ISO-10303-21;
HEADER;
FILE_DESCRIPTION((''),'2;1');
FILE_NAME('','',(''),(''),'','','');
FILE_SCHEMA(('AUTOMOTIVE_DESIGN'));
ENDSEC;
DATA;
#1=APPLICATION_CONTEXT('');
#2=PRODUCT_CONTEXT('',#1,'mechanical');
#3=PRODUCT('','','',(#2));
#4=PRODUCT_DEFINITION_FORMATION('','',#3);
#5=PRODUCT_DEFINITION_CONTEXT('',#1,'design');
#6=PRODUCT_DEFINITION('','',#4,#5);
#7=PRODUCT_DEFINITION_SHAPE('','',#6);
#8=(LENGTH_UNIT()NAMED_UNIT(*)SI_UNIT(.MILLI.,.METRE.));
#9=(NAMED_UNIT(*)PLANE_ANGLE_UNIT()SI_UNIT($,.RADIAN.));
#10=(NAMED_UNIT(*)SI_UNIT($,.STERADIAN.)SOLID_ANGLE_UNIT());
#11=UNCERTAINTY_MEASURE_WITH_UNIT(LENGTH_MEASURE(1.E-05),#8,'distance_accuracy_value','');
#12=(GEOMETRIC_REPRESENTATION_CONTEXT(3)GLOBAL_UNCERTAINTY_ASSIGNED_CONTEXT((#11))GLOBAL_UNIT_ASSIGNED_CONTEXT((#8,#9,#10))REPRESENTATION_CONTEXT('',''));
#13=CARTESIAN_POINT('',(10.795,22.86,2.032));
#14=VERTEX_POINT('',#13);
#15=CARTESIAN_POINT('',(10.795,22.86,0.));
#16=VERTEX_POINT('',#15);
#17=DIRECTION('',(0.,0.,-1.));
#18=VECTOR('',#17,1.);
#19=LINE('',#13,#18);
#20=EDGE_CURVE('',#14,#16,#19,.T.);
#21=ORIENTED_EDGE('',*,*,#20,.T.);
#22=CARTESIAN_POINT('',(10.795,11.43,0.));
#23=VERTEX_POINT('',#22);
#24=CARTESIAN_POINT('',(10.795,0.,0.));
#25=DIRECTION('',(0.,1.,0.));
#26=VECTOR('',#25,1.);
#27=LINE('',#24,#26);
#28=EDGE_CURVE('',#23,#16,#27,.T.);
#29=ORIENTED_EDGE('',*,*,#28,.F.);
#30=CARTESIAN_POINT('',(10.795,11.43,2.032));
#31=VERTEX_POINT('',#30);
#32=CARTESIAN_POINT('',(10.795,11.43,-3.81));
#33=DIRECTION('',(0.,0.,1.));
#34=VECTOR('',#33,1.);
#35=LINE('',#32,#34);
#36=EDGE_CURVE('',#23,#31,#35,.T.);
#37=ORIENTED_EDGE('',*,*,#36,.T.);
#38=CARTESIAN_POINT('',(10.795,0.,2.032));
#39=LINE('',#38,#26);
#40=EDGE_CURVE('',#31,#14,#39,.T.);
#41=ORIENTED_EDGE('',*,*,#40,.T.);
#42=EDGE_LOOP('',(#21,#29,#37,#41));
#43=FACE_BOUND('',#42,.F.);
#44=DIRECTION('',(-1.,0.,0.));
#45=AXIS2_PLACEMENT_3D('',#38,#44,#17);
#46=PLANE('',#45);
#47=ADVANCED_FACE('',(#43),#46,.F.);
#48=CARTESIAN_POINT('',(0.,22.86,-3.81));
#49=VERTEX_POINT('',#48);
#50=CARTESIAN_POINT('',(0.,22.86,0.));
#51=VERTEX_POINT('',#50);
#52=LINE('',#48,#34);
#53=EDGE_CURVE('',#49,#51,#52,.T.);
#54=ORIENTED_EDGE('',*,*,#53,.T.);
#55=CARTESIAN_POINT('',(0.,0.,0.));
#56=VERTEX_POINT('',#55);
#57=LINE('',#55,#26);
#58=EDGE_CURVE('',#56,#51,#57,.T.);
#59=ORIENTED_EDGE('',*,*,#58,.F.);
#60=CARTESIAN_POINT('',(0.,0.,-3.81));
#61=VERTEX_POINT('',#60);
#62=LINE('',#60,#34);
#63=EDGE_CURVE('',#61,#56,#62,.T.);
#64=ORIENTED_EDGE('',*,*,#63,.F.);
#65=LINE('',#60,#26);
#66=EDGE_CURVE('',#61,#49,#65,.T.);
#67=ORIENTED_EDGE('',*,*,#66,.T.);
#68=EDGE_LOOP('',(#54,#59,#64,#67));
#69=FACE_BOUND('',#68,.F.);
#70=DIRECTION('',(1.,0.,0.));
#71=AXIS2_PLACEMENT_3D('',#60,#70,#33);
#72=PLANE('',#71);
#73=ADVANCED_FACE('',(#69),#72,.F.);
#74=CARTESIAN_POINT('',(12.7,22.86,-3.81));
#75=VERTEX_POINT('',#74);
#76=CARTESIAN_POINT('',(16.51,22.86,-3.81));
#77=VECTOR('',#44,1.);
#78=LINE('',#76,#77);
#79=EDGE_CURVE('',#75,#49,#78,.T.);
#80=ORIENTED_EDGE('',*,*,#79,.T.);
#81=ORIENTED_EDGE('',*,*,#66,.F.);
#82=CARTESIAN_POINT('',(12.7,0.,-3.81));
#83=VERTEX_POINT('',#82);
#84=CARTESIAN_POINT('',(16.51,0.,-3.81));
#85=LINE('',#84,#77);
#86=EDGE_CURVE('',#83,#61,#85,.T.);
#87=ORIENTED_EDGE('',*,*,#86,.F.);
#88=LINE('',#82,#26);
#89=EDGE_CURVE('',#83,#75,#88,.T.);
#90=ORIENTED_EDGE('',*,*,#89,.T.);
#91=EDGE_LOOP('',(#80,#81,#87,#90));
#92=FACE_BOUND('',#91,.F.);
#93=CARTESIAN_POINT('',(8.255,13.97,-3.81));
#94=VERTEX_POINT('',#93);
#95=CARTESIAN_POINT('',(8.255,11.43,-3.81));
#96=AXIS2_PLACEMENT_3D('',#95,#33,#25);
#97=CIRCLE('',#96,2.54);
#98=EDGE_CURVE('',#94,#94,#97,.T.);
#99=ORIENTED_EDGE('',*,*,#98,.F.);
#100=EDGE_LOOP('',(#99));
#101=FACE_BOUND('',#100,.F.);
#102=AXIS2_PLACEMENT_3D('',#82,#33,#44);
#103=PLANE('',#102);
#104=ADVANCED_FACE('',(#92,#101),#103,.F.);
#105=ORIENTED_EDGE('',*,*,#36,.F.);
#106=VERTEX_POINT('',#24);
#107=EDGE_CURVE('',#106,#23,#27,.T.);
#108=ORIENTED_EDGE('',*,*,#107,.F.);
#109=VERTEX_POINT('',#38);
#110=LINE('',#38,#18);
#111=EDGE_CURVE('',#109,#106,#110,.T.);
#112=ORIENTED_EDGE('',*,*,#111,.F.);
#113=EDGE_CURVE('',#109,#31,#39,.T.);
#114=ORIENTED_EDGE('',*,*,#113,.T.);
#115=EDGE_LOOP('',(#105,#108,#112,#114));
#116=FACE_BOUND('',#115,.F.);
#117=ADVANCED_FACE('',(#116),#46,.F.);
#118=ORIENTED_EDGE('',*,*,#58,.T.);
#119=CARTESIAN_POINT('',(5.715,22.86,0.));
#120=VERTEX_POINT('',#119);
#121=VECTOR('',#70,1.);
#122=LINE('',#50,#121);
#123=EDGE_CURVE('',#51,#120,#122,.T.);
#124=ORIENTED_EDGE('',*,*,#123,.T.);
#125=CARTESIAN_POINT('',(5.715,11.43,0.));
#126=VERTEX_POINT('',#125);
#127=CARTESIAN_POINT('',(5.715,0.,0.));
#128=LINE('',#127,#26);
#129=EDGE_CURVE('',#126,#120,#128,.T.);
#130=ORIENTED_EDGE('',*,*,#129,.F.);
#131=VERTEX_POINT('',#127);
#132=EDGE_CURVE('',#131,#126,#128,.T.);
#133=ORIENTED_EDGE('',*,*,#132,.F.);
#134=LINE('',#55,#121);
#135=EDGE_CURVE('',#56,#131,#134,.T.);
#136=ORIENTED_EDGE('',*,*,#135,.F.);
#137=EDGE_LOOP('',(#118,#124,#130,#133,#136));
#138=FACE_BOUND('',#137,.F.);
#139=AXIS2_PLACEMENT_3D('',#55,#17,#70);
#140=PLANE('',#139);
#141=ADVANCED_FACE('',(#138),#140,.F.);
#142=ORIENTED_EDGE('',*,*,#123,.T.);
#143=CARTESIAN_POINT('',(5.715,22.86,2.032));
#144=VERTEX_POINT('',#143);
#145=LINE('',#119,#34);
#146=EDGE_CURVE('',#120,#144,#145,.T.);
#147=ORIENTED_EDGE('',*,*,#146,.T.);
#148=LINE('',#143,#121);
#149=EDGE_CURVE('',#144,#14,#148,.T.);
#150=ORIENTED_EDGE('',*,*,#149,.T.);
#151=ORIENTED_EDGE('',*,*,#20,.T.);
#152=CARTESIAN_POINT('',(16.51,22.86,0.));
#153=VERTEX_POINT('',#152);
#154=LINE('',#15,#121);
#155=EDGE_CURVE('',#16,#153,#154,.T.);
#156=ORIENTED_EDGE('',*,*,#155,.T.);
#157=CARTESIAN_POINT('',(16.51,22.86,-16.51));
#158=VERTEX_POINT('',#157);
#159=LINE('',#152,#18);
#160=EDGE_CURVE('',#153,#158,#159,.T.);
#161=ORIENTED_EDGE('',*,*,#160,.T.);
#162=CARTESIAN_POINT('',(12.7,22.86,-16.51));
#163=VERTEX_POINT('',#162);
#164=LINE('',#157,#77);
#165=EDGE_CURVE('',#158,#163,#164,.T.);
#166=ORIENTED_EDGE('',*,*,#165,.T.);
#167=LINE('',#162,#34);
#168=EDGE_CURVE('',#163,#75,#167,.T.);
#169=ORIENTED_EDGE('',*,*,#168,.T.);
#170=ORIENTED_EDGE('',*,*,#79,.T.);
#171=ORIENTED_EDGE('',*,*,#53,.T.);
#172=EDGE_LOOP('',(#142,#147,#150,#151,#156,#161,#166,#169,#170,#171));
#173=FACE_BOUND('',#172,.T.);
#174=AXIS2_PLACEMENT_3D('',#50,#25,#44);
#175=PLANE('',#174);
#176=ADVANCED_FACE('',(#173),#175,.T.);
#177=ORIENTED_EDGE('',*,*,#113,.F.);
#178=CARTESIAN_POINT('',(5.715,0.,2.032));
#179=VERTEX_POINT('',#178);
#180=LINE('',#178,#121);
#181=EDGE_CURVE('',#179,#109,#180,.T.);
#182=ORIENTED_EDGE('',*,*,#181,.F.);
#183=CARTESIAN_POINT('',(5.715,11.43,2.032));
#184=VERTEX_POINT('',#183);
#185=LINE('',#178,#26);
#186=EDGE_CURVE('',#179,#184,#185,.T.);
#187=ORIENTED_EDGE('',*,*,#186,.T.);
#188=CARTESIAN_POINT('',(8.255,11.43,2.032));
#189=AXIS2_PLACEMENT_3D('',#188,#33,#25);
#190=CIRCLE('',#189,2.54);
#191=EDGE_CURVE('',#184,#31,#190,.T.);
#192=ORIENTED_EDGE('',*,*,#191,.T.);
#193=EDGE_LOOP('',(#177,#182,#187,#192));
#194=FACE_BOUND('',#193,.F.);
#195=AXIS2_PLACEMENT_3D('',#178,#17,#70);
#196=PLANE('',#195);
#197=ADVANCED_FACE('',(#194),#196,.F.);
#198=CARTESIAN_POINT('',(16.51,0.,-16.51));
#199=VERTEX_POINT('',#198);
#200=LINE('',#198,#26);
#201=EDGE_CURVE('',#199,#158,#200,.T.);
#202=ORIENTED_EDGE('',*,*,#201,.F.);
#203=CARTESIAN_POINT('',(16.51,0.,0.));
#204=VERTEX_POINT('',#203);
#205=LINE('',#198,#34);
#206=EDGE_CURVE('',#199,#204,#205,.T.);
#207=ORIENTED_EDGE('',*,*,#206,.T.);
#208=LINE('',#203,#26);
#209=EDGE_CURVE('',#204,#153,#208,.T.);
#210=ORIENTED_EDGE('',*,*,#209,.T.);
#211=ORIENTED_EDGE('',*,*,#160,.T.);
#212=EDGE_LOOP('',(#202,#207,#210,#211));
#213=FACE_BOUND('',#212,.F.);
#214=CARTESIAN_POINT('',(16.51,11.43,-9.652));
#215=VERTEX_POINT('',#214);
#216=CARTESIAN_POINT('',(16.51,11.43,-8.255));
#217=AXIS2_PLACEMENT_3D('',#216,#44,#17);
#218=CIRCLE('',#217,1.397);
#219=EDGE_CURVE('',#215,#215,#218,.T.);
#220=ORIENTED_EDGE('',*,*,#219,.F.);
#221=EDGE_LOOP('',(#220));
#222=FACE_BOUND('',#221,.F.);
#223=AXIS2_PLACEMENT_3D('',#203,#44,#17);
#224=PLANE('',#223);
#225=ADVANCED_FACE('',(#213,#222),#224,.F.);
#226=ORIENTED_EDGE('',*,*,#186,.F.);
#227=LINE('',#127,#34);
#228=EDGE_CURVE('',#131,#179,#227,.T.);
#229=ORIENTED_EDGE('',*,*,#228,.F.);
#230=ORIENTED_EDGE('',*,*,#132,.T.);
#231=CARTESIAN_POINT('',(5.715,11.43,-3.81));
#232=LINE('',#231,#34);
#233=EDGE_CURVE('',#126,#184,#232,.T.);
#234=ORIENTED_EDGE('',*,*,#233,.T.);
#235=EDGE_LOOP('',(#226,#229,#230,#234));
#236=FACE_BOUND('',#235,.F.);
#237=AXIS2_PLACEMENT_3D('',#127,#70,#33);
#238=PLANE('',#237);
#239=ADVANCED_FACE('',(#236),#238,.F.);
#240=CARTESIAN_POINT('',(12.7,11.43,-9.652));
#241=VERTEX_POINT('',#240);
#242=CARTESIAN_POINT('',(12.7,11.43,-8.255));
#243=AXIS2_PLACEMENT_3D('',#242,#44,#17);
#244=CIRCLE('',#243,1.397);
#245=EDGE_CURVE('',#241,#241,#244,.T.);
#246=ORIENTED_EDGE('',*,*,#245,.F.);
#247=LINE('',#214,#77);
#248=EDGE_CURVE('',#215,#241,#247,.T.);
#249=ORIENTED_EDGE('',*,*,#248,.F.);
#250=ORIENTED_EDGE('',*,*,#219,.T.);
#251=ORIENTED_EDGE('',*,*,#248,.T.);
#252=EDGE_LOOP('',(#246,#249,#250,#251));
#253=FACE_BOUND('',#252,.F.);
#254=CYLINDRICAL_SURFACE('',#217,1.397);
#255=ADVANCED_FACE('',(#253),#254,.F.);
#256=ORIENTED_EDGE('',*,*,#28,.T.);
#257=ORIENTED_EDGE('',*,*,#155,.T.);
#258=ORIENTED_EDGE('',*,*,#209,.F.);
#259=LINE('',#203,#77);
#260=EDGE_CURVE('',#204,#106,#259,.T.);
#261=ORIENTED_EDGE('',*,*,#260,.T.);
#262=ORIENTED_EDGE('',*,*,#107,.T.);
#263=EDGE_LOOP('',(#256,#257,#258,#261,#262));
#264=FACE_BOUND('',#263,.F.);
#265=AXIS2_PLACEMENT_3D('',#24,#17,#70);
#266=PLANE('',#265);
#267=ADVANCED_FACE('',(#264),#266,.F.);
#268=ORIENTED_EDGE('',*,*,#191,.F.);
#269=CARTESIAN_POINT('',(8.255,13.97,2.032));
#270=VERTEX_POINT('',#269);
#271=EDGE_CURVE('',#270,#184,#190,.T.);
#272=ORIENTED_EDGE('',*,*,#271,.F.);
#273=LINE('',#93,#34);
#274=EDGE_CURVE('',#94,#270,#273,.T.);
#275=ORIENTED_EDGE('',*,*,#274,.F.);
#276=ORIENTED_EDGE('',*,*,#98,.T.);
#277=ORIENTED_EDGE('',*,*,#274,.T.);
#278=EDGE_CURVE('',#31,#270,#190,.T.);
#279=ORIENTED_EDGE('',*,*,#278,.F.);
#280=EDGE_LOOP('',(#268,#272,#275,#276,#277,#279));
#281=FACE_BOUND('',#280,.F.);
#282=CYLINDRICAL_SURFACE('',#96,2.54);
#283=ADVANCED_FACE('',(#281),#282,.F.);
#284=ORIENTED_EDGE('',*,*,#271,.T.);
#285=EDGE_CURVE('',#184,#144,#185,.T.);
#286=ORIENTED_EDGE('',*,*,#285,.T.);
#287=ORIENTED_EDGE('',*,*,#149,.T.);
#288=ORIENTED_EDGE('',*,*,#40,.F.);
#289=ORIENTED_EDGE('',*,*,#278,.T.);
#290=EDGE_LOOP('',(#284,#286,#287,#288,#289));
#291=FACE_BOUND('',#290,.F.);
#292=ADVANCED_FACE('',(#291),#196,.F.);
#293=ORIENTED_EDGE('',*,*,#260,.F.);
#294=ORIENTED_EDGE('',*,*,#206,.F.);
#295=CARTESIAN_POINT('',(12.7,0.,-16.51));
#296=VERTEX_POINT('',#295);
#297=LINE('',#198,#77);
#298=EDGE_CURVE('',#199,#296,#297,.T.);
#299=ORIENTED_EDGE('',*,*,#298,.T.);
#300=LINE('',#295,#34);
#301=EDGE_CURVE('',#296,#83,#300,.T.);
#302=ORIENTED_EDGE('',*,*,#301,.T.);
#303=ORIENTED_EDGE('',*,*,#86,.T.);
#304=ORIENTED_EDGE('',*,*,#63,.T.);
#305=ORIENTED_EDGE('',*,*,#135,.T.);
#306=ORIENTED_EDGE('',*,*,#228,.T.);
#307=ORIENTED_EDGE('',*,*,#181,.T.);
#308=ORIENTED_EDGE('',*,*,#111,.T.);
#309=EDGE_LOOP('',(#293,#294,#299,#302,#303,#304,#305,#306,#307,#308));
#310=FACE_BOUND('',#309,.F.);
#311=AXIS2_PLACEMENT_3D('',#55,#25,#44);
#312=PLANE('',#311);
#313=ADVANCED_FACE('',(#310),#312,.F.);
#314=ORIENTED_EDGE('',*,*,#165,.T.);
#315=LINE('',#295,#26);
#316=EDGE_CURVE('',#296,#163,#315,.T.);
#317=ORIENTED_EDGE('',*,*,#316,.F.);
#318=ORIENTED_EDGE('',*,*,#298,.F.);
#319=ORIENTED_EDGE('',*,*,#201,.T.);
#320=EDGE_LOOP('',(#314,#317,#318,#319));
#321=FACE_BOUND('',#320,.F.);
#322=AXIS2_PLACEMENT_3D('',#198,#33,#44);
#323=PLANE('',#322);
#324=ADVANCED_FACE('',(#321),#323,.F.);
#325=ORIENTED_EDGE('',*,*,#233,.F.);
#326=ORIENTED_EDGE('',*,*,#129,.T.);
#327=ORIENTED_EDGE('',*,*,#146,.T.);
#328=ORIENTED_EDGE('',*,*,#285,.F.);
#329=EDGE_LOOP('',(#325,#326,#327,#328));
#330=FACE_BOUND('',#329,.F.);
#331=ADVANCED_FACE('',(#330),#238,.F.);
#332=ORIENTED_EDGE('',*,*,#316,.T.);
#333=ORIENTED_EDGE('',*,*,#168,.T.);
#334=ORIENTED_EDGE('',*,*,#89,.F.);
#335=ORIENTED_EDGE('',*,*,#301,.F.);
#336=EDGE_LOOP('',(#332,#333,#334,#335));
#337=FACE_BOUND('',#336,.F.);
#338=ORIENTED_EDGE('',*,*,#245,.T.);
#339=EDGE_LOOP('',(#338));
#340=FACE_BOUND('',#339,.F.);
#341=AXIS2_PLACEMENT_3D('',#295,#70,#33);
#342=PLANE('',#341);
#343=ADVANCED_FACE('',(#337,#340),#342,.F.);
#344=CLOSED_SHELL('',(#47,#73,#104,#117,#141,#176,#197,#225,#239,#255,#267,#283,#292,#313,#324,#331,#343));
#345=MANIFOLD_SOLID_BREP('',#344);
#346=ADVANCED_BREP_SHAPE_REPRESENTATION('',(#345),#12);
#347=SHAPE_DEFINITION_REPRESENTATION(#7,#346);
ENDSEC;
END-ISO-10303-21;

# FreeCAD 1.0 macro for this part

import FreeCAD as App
import Part
import Sketcher
Q = App.Units.Quantity


def add_polygon(sketch, points):
    """Adds a closed chain of lines whose ends are joined by coincident constraints."""
    first, n = sketch.GeometryCount, len(points)
    for a, b in zip(points, points[1:] + points[:1]):
        sketch.addGeometry(Part.LineSegment(App.Vector(*a, 0), App.Vector(*b, 0)), False)
    for i in range(n):
        sketch.addConstraint(Sketcher.Constraint("Coincident", first + i, 2, first + (i + 1) % n, 1))

doc = App.newDocument("Part")
body = doc.addObject("PartDesign::Body", "Body")

# Sketch on XZ plane
sketch1 = body.newObject("Sketcher::SketchObject", "Sketch")
sketch1.AttachmentSupport = (doc.getObject("XZ_Plane"), [""])
sketch1.MapMode = "FlatFace"
add_polygon(sketch1, [(0, -3.8), (0, 0), (5.7, 0), (5.7, 2), (10.8, 2), (10.8, 0), (16.5, 0), (16.5, -16.5), (12.7, -16.5), (12.7, -3.8)])  # lines 0-9
sketch1.addConstraint(Sketcher.Constraint("Vertical", 0))
sketch1.addConstraint(Sketcher.Constraint("Horizontal", 1))
sketch1.addConstraint(Sketcher.Constraint("Vertical", 2))
sketch1.addConstraint(Sketcher.Constraint("Horizontal", 3))
sketch1.addConstraint(Sketcher.Constraint("Vertical", 4))
sketch1.addConstraint(Sketcher.Constraint("Horizontal", 5))
sketch1.addConstraint(Sketcher.Constraint("Vertical", 6))
sketch1.addConstraint(Sketcher.Constraint("Horizontal", 7))
sketch1.addConstraint(Sketcher.Constraint("Vertical", 8))
sketch1.addConstraint(Sketcher.Constraint("Horizontal", 9))
sketch1.addConstraint(Sketcher.Constraint("Coincident", 0, 2, -1, 1))
sketch1.addConstraint(Sketcher.Constraint("PointOnObject", 4, 2, -1))
sketch1.addConstraint(Sketcher.Constraint("Equal", 1, 5))
sketch1.addConstraint(Sketcher.Constraint("Equal", 7, 0))
sketch1.addConstraint(Sketcher.Constraint("Equal", 9, 8))
sketch1.addConstraint(Sketcher.Constraint("DistanceX", 3, 1, 3, 2, Q("0.2 in")))
sketch1.addConstraint(Sketcher.Constraint("DistanceX", 7, 2, 7, 1, Q("0.15 in")))
sketch1.addConstraint(Sketcher.Constraint("DistanceY", 2, 1, 2, 2, Q("0.08 in")))
sketch1.addConstraint(Sketcher.Constraint("DistanceY", 6, 2, 6, 1, Q("0.65 in")))
pad1 = body.newObject("PartDesign::Pad", "Pad")
pad1.Profile = sketch1
pad1.Length = Q("0.9 in")
pad1.Reversed = True

# Sketch on YZ plane
sketch2 = body.newObject("Sketcher::SketchObject", "Sketch001")
sketch2.AttachmentSupport = (doc.getObject("YZ_Plane"), [""])
sketch2.MapMode = "FlatFace"
sketch2.AttachmentOffset = App.Placement(App.Vector(0, 0, 0.65 * 25.4), App.Rotation())
sketch2.addGeometry(Part.Circle(App.Vector(11.4, -8.3, 0), App.Vector(0, 0, 1), 1.4), False)
sketch2.addConstraint(Sketcher.Constraint("Diameter", 0, Q("0.11 in")))
sketch2.addConstraint(Sketcher.Constraint("DistanceX", -1, 1, 0, 3, Q("0.45 in")))
sketch2.addConstraint(Sketcher.Constraint("DistanceY", 0, 3, -1, 1, Q("0.325 in")))
doc.recompute()
hole = body.newObject("PartDesign::Hole", "Hole")
hole.Profile = sketch2
hole.ThreadType = "None"
hole.Diameter = Q("0.11 in")
hole.DepthType = "ThroughAll"

# Sketch on XY plane
sketch3 = body.newObject("Sketcher::SketchObject", "Sketch002")
sketch3.AttachmentSupport = (doc.getObject("XY_Plane"), [""])
sketch3.MapMode = "FlatFace"
sketch3.AttachmentOffset = App.Placement(App.Vector(0, 0, -0.15 * 25.4), App.Rotation())
sketch3.addGeometry(Part.Circle(App.Vector(8.3, 11.4, 0), App.Vector(0, 0, 1), 2.5), False)
sketch3.addConstraint(Sketcher.Constraint("Diameter", 0, Q("0.2 in")))
sketch3.addConstraint(Sketcher.Constraint("DistanceY", -1, 1, 0, 3, Q("0.45 in")))
sketch3.addConstraint(Sketcher.Constraint("DistanceX", -1, 1, 0, 3, Q("0.325 in")))
doc.recompute()
hole2 = body.newObject("PartDesign::Hole", "Hole001")
hole2.Profile = sketch3
hole2.ThreadType = "None"
hole2.Diameter = Q("0.2 in")
hole2.DepthType = "ThroughAll"
hole2.Reversed = True

doc.recompute()
